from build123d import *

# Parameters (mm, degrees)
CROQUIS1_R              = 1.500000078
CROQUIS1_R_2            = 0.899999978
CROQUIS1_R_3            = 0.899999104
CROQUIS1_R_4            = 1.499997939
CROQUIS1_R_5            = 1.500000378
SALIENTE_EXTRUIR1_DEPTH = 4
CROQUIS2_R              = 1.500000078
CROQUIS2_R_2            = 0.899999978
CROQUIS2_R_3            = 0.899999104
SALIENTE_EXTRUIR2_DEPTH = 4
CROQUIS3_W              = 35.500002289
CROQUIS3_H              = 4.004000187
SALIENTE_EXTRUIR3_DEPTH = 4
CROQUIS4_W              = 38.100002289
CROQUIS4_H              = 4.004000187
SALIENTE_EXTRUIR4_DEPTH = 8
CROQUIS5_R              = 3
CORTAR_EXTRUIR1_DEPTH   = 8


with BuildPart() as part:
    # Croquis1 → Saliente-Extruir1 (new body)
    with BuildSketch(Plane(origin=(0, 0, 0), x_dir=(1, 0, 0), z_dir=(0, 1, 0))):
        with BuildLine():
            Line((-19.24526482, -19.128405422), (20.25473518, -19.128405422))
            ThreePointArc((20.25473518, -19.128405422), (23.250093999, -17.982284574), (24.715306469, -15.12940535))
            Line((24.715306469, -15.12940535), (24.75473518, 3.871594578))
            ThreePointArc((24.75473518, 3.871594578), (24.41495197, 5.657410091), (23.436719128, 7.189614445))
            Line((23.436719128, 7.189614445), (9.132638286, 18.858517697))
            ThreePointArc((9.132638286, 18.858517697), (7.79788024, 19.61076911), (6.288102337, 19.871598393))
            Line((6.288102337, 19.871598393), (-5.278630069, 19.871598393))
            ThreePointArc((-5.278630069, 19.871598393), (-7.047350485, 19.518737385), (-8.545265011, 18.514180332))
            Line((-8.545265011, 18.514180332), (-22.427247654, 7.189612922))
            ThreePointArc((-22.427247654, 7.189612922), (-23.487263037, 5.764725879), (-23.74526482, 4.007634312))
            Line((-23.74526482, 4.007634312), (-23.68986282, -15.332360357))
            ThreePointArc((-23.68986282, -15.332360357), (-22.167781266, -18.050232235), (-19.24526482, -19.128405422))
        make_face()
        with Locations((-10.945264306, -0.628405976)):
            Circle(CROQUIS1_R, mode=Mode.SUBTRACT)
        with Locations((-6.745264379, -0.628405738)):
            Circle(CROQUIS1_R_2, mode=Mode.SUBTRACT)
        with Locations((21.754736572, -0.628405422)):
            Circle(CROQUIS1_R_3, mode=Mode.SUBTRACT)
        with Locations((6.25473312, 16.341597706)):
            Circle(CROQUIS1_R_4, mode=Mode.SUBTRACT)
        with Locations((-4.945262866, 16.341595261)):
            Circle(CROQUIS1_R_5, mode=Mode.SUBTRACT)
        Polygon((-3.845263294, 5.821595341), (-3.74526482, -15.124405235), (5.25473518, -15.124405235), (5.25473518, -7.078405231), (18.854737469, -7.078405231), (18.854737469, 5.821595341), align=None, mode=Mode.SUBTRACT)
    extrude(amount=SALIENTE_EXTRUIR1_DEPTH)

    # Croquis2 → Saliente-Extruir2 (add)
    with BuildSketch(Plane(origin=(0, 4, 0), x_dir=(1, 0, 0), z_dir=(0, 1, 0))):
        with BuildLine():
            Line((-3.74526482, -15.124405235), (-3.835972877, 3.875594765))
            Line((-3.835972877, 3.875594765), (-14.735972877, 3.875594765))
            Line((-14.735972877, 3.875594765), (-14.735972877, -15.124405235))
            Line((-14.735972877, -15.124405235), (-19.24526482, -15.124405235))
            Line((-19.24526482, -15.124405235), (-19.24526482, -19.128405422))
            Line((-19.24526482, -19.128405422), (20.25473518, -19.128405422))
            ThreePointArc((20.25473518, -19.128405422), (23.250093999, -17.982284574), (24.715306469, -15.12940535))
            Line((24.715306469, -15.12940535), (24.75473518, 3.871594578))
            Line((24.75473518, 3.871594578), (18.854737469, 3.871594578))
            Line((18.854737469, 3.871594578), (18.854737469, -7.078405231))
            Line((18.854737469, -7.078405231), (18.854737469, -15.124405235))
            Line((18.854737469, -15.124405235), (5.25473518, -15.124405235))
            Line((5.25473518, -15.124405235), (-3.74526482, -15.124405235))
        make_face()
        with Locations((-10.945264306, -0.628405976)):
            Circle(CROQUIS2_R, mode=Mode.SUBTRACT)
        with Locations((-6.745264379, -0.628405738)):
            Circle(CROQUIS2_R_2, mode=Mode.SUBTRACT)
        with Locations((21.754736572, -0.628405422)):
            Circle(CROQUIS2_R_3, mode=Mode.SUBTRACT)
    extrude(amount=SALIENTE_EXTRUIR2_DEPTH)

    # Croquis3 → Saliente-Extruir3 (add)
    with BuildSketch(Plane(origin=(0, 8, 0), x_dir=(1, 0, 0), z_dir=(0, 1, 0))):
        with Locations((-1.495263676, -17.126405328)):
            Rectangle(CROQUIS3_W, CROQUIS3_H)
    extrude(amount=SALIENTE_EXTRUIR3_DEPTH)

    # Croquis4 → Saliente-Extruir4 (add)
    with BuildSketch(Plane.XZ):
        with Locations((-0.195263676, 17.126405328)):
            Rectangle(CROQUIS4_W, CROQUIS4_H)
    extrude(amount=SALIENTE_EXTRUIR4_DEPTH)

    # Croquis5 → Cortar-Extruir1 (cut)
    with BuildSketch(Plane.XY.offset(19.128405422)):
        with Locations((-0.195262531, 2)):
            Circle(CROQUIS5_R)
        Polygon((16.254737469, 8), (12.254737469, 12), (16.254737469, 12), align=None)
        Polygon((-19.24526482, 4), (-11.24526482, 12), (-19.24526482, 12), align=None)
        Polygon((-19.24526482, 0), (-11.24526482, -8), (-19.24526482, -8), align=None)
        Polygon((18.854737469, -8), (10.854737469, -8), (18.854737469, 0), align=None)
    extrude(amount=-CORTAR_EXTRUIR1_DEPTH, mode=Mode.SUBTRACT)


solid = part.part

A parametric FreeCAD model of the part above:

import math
import FreeCAD as App
import Part
import Sketcher


def add_polygon(sketch, points):
    """Adds a closed chain of lines whose ends are joined by coincident constraints."""
    first, n = sketch.GeometryCount, len(points)
    for a, b in zip(points, points[1:] + points[:1]):
        sketch.addGeometry(Part.LineSegment(App.Vector(*a, 0), App.Vector(*b, 0)), False)
    for i in range(n):
        sketch.addConstraint(Sketcher.Constraint("Coincident", first + i, 2, first + (i + 1) % n, 1))

doc = App.newDocument("Part")
body = doc.addObject("PartDesign::Body", "Body")

# Sketch on XZ plane
sketch1 = body.newObject("Sketcher::SketchObject", "Sketch")
sketch1.AttachmentSupport = (doc.getObject("XZ_Plane"), [""])
sketch1.MapMode = "FlatFace"
sketch1.addGeometry(Part.LineSegment(App.Vector(-19.245265, 19.128405, 0), App.Vector(20.254735, 19.128405, 0)), False)  # 0
sketch1.addGeometry(Part.ArcOfCircle(Part.Circle(App.Vector(20.254735, 14.641196, 0), App.Vector(0, 0, 1), 4.487209), math.radians(6.246152), math.radians(90)), False)  # 1
sketch1.addGeometry(Part.LineSegment(App.Vector(24.715306, 15.129405, 0), App.Vector(24.754735, -3.871595, 0)), False)  # 2
sketch1.addGeometry(Part.ArcOfCircle(Part.Circle(App.Vector(19.944406, -3.881576, 0), App.Vector(0, 0, 1), 4.81034), math.radians(-43.447785), math.radians(0.118894)), False)  # 3
sketch1.addGeometry(Part.LineSegment(App.Vector(23.436719, -7.189614, 0), App.Vector(9.132638, -18.858518, 0)), False)  # 4
sketch1.addGeometry(Part.ArcOfCircle(Part.Circle(App.Vector(6.288102, -15.371603, 0), App.Vector(0, 0, 1), 4.499996), math.radians(-90), math.radians(-50.793314)), False)  # 5
sketch1.addGeometry(Part.LineSegment(App.Vector(6.288102, -19.871598, 0), App.Vector(-5.27863, -19.871598, 0)), False)  # 6
sketch1.addGeometry(Part.ArcOfCircle(Part.Circle(App.Vector(-5.27863, -15.262301, 0), App.Vector(0, 0, 1), 4.609298), math.radians(-135.129695), math.radians(-90)), False)  # 7
sketch1.addGeometry(Part.LineSegment(App.Vector(-8.545265, -18.51418, 0), App.Vector(-22.427248, -7.189613, 0)), False)  # 8
sketch1.addGeometry(Part.ArcOfCircle(Part.Circle(App.Vector(-20.130645, -4.374371, 0), App.Vector(0, 0, 1), 3.633177), math.radians(174.206641), math.radians(230.793312)), False)  # 9
sketch1.addGeometry(Part.LineSegment(App.Vector(-23.745265, -4.007634, 0), App.Vector(-23.689863, 15.33236, 0)), False)  # 10
sketch1.addGeometry(Part.ArcOfCircle(Part.Circle(App.Vector(-19.245265, 14.628405, 0), App.Vector(0, 0, 1), 4.500001), math.radians(90), math.radians(170.999996)), False)  # 11
sketch1.addGeometry(Part.Circle(App.Vector(-10.945264, 0.628406, 0), App.Vector(0, 0, 1), 1.5), False)  # 12
sketch1.addGeometry(Part.Circle(App.Vector(-6.745264, 0.628406, 0), App.Vector(0, 0, 1), 0.9), False)  # 13
add_polygon(sketch1, [(-3.745265, 15.124405), (-3.845263, -5.821595), (18.854737, -5.821595), (18.854737, 7.078405), (5.254735, 7.078405), (5.254735, 15.124405)])  # lines 14-19
sketch1.addGeometry(Part.Circle(App.Vector(21.754737, 0.628405, 0), App.Vector(0, 0, 1), 0.899999), False)  # 20
sketch1.addGeometry(Part.Circle(App.Vector(-4.945263, -16.341595, 0), App.Vector(0, 0, 1), 1.5), False)  # 21
sketch1.addGeometry(Part.Circle(App.Vector(6.254733, -16.341598, 0), App.Vector(0, 0, 1), 1.499998), False)  # 22
sketch1.addConstraint([
    Sketcher.Constraint("Coincident", 0, 2, 1, 2),
    Sketcher.Constraint("Coincident", 1, 1, 2, 1),
    Sketcher.Constraint("Coincident", 2, 2, 3, 2),
    Sketcher.Constraint("Coincident", 3, 1, 4, 1),
    Sketcher.Constraint("Coincident", 4, 2, 5, 2),
    Sketcher.Constraint("Coincident", 5, 1, 6, 1),
    Sketcher.Constraint("Coincident", 6, 2, 7, 2),
    Sketcher.Constraint("Coincident", 7, 1, 8, 1),
    Sketcher.Constraint("Coincident", 8, 2, 9, 2),
    Sketcher.Constraint("Coincident", 9, 1, 10, 1),
    Sketcher.Constraint("Coincident", 10, 2, 11, 2),
    Sketcher.Constraint("Coincident", 11, 1, 0, 1),
    Sketcher.Constraint("Horizontal", 0),
    Sketcher.Constraint("Horizontal", 6),
    Sketcher.Constraint("Horizontal", 15),
    Sketcher.Constraint("Vertical", 16),
    Sketcher.Constraint("Horizontal", 17),
    Sketcher.Constraint("Vertical", 18),
    Sketcher.Constraint("Horizontal", 19),
    Sketcher.Constraint("Diameter", 12, 3.0),
    Sketcher.Constraint("Diameter", 21, 3.000001),
    Sketcher.Constraint("Diameter", 13, 1.8),
    Sketcher.Constraint("Diameter", 20, 1.799998),
    Sketcher.Constraint("Radius", 11, 4.500001),
    Sketcher.Constraint("DistanceX", 19, 2, 19, 1, 9.0),
    Sketcher.Constraint("DistanceX", 0, 1, 0, 2, 39.5),
    Sketcher.Constraint("DistanceX", 15, 1, 15, 2, 22.700001),
    Sketcher.Constraint("DistanceY", 16, 1, 16, 2, 12.900001),
    Sketcher.Constraint("DistanceY", 12, 3, 11, 3, 13.999999),
    Sketcher.Constraint("DistanceY", 13, 3, 11, 3, 13.999999),
    Sketcher.Constraint("DistanceX", 12, 3, 21, 3, 6.000001),
    Sketcher.Constraint("DistanceX", 13, 3, 0, 2, 27.0),
    Sketcher.Constraint("DistanceX", 20, 3, 2, 2, 2.999999),
    Sketcher.Constraint("DistanceX", 9, 1, 13, 3, 17.0),
    Sketcher.Constraint("DistanceX", 13, 3, 17, 2, 12.0),
    Sketcher.Constraint("DistanceX", 17, 2, 1, 3, 15.0),
    Sketcher.Constraint("DistanceX", 11, 3, 1, 3, 39.5),
    Sketcher.Constraint("DistanceX", 11, 3, 12, 3, 8.300001),
    Sketcher.Constraint("DistanceX", 1, 3, 20, 3, 1.500001),
    Sketcher.Constraint("DistanceY", 20, 3, 0, 2, 18.5),
    Sketcher.Constraint("DistanceY", 2, 2, 20, 3, 4.5),
    Sketcher.Constraint("DistanceX", 7, 1, 22, 3, 14.799998),
    Sketcher.Constraint("DistanceX", 13, 3, 14, 2, 2.900001),
    Sketcher.Constraint("DistanceX", 7, 1, 14, 2, 4.700002),
    Sketcher.Constraint("DistanceY", 18, 1, 18, 2, 8.046),
    Sketcher.Constraint("Radius", 1, 4.487209),
    Sketcher.Constraint("Radius", 3, 4.81034),
    Sketcher.Constraint("DistanceY", 21, 3, 13, 3, 16.970001),
    Sketcher.Constraint("DistanceY", 5, 1, 22, 3, 3.530001),
    Sketcher.Constraint("DistanceY", 14, 2, 13, 3, 6.450001),
    Sketcher.Constraint("Diameter", 22, 2.999996),
    Sketcher.Constraint("Radius", 5, 4.499996),
    Sketcher.Constraint("Radius", 7, 4.609298),
    Sketcher.Constraint("Radius", 9, 3.633177),
    Sketcher.Constraint("DistanceY", 1, 1, 0, 2, 3.999),
    Sketcher.Constraint("DistanceY", 7, 3, -1, 1, 15.262301),
    Sketcher.Constraint("DistanceY", 5, 3, 1, 3, 30.012799),
    Sketcher.Constraint("DistanceX", 21, 3, 4, 2, 14.077901),
    Sketcher.Constraint("DistanceX", 9, 1, 10, 2, 0.055402),
    Sketcher.Constraint("DistanceX", 6, 2, 6, 1, 11.566732),
    Sketcher.Constraint("DistanceX", 7, 3, -1, 1, 5.27863),
    Sketcher.Constraint("DistanceY", 9, 3, -1, 1, 4.374371),
    Sketcher.Constraint("DistanceX", -1, 1, 3, 1, 23.436719),
    Sketcher.Constraint("DistanceX", -1, 1, 4, 2, 9.132638),
    Sketcher.Constraint("DistanceX", 6, 2, -1, 1, 5.27863),
    Sketcher.Constraint("DistanceX", 9, 3, 3, 3, 40.075051),
    Sketcher.Constraint("DistanceY", 3, 3, 11, 3, 18.509981),
    Sketcher.Constraint("DistanceX", 22, 3, 5, 3, 0.033369),
    Sketcher.Constraint("DistanceY", 8, 2, 12, 3, 7.818019),
])
pad1 = body.newObject("PartDesign::Pad", "Pad")
pad1.Profile = sketch1
pad1.Length = 4
pad1.Reversed = True

# Sketch on XZ plane
sketch2 = body.newObject("Sketcher::SketchObject", "Sketch001")
sketch2.AttachmentSupport = (doc.getObject("XZ_Plane"), [""])
sketch2.MapMode = "FlatFace"
sketch2.AttachmentOffset = App.Placement(App.Vector(0, 0, -4), App.Rotation())
sketch2.addGeometry([
    Part.LineSegment(App.Vector(-3.7, 15.1, 0), App.Vector(-3.8, -3.9, 0)),  # 0
    Part.LineSegment(App.Vector(-3.8, -3.9, 0), App.Vector(-14.7, -3.9, 0)),  # 1
    Part.LineSegment(App.Vector(-14.7, -3.9, 0), App.Vector(-14.7, 15.1, 0)),  # 2
    Part.LineSegment(App.Vector(-14.7, 15.1, 0), App.Vector(-19.2, 15.1, 0)),  # 3
    Part.LineSegment(App.Vector(-19.2, 15.1, 0), App.Vector(-19.2, 19.1, 0)),  # 4
    Part.LineSegment(App.Vector(-19.2, 19.1, 0), App.Vector(20.3, 19.1, 0)),  # 5
    Part.ArcOfCircle(Part.Circle(App.Vector(20.3, 14.6, 0), App.Vector(0, 0, 1), 4.5), math.radians(6), math.radians(90)),  # 6
    Part.LineSegment(App.Vector(24.7, 15.1, 0), App.Vector(24.8, -3.9, 0)),  # 7
    Part.LineSegment(App.Vector(24.8, -3.9, 0), App.Vector(18.9, -3.9, 0)),  # 8
    Part.LineSegment(App.Vector(18.9, -3.9, 0), App.Vector(18.9, 15.1, 0)),  # 9
    Part.LineSegment(App.Vector(18.9, 15.1, 0), App.Vector(-3.7, 15.1, 0)),  # 10
    Part.Circle(App.Vector(-10.9, 0.6, 0), App.Vector(0, 0, 1), 1.5),  # 11
    Part.Circle(App.Vector(-6.7, 0.6, 0), App.Vector(0, 0, 1), 0.9),  # 12
    Part.Circle(App.Vector(21.8, 0.6, 0), App.Vector(0, 0, 1), 0.9),  # 13
], False)
sketch2.addConstraint([
    Sketcher.Constraint("Coincident", 0, 2, 1, 1),
    Sketcher.Constraint("Coincident", 1, 2, 2, 1),
    Sketcher.Constraint("Coincident", 2, 2, 3, 1),
    Sketcher.Constraint("Coincident", 3, 2, 4, 1),
    Sketcher.Constraint("Coincident", 4, 2, 5, 1),
    Sketcher.Constraint("Tangent", 5, 2, 6, 2),
    Sketcher.Constraint("Coincident", 6, 1, 7, 1),
    Sketcher.Constraint("Coincident", 7, 2, 8, 1),
    Sketcher.Constraint("Coincident", 8, 2, 9, 1),
    Sketcher.Constraint("Coincident", 9, 2, 10, 1),
    Sketcher.Constraint("Coincident", 10, 2, 0, 1),
    Sketcher.Constraint("Horizontal", 1),
    Sketcher.Constraint("Vertical", 2),
    Sketcher.Constraint("Horizontal", 3),
    Sketcher.Constraint("Vertical", 4),
    Sketcher.Constraint("Horizontal", 5),
    Sketcher.Constraint("Horizontal", 8),
    Sketcher.Constraint("Vertical", 9),
    Sketcher.Constraint("Horizontal", 10),
    Sketcher.Constraint("Equal", 12, 13),
    Sketcher.Constraint("Horizontal", 11, 3, 12, 3),
    Sketcher.Constraint("Horizontal", 12, 3, 13, 3),
    Sketcher.Constraint("Horizontal", 3, 2, 9, 2),
    Sketcher.Constraint("Diameter", 11, 3.0),
    Sketcher.Constraint("Diameter", 12, 1.8),
    Sketcher.Constraint("DistanceY", 2, 1, 2, 2, 19.0),
    Sketcher.Constraint("DistanceX", 1, 2, 1, 1, 10.9),
    Sketcher.Constraint("DistanceX", 5, 1, 5, 2, 39.5),
    Sketcher.Constraint("DistanceX", 12, 3, 6, 3, 27.0),
    Sketcher.Constraint("DistanceX", 13, 3, 7, 2, 2.999999),
    Sketcher.Constraint("DistanceY", 7, 2, 5, 2, 23.0),
    Sketcher.Constraint("DistanceX", 12, 3, 10, 2, 3.0),
    Sketcher.Constraint("DistanceX", 11, 3, 6, 3, 31.199999),
    Sketcher.Constraint("DistanceX", 6, 3, 13, 3, 1.500001),
    Sketcher.Constraint("DistanceY", 11, 3, 4, 2, 18.499999),
    Sketcher.Constraint("DistanceX", 8, 2, 13, 3, 2.899999),
    Sketcher.Constraint("DistanceY", 4, 1, 4, 2, 4.004),
    Sketcher.Constraint("Radius", 6, 4.487209),
    Sketcher.Constraint("DistanceY", 6, 1, 5, 2, 3.999),
    Sketcher.Constraint("DistanceX", 3, 2, 3, 1, 4.509292),
    Sketcher.Constraint("DistanceX", -1, 1, 6, 3, 20.254735),
    Sketcher.Constraint("DistanceY", -1, 1, 6, 3, 14.641196),
])
pad2 = body.newObject("PartDesign::Pad", "Pad001")
pad2.Profile = sketch2
pad2.Length = 4
pad2.Reversed = True

# Sketch on XZ plane
sketch3 = body.newObject("Sketcher::SketchObject", "Sketch002")
sketch3.AttachmentSupport = (doc.getObject("XZ_Plane"), [""])
sketch3.MapMode = "FlatFace"
sketch3.AttachmentOffset = App.Placement(App.Vector(0, 0, -8), App.Rotation())
add_polygon(sketch3, [(-19.2, 15.1), (-19.2, 19.1), (16.3, 19.1), (16.3, 15.1)])  # lines 0-3
sketch3.addConstraint([
    Sketcher.Constraint("Vertical", 0),
    Sketcher.Constraint("Horizontal", 1),
    Sketcher.Constraint("Vertical", 2),
    Sketcher.Constraint("Horizontal", 3),
    Sketcher.Constraint("DistanceY", 0, 1, 0, 2, 4.004),
    Sketcher.Constraint("DistanceX", 1, 1, 1, 2, 35.500002),
    Sketcher.Constraint("DistanceX", 0, 2, -1, 1, 19.245265),
    Sketcher.Constraint("DistanceY", -1, 1, 0, 2, 19.128405),
])
pad3 = body.newObject("PartDesign::Pad", "Pad002")
pad3.Profile = sketch3
pad3.Length = 4
pad3.Reversed = True

# Sketch on XZ plane
sketch4 = body.newObject("Sketcher::SketchObject", "Sketch003")
sketch4.AttachmentSupport = (doc.getObject("XZ_Plane"), [""])
sketch4.MapMode = "FlatFace"
add_polygon(sketch4, [(-19.2, 19.1), (-19.2, 15.1), (18.9, 15.1), (18.9, 19.1)])  # lines 0-3
sketch4.addConstraint([
    Sketcher.Constraint("Vertical", 0),
    Sketcher.Constraint("Horizontal", 1),
    Sketcher.Constraint("Vertical", 2),
    Sketcher.Constraint("Horizontal", 3),
    Sketcher.Constraint("DistanceY", 0, 2, 0, 1, 4.004),
    Sketcher.Constraint("DistanceX", 1, 1, 1, 2, 38.100002),
    Sketcher.Constraint("DistanceX", 0, 2, -1, 1, 19.245265),
    Sketcher.Constraint("DistanceY", -1, 1, 0, 2, 15.124405),
])
pad4 = body.newObject("PartDesign::Pad", "Pad003")
pad4.Profile = sketch4
pad4.Length = 8

# Sketch on XY plane
sketch5 = body.newObject("Sketcher::SketchObject", "Sketch004")
sketch5.AttachmentSupport = (doc.getObject("XY_Plane"), [""])
sketch5.MapMode = "FlatFace"
sketch5.AttachmentOffset = App.Placement(App.Vector(0, 0, 19.128405), App.Rotation())
sketch5.addGeometry(Part.Circle(App.Vector(-0.2, 2, 0), App.Vector(0, 0, 1), 3), False)  # 0
add_polygon(sketch5, [(12.3, 12), (16.3, 8), (16.3, 12)])  # lines 1-3
add_polygon(sketch5, [(-19.2, 4), (-11.2, 12), (-19.2, 12)])  # lines 4-6
add_polygon(sketch5, [(-11.2, -8), (-19.2, 0), (-19.2, -8)])  # lines 7-9
add_polygon(sketch5, [(10.9, -8), (18.9, -8), (18.9, 0)])  # lines 10-12
sketch5.addConstraint([
    Sketcher.Constraint("Vertical", 2),
    Sketcher.Constraint("Horizontal", 3),
    Sketcher.Constraint("Horizontal", 5),
    Sketcher.Constraint("Vertical", 6),
    Sketcher.Constraint("Vertical", 8),
    Sketcher.Constraint("Horizontal", 9),
    Sketcher.Constraint("Horizontal", 10),
    Sketcher.Constraint("Vertical", 11),
    Sketcher.Constraint("PointOnObject", 7, 2, -1),
    Sketcher.Constraint("PointOnObject", 11, 2, -1),
    Sketcher.Constraint("Perpendicular", 1, 4),
    Sketcher.Constraint("Perpendicular", 4, 7),
    Sketcher.Constraint("Perpendicular", 7, 12),
    Sketcher.Constraint("Horizontal", 3, 2, 4, 2),
    Sketcher.Constraint("Horizontal", 9, 2, 10, 2),
    Sketcher.Constraint("Vertical", 6, 2, 7, 2),
    Sketcher.Constraint("Vertical", 4, 2, 9, 2),
    Sketcher.Constraint("Equal", 9, 10),
    Sketcher.Constraint("Diameter", 0, 6.0),
    Sketcher.Constraint("DistanceX", 3, 2, 3, 1, 4.0),
    Sketcher.Constraint("DistanceX", 5, 2, 5, 1, 8.0),
    Sketcher.Constraint("DistanceY", -1, 1, 0, 3, 2.0),
    Sketcher.Constraint("DistanceY", -1, 1, 1, 2, 8.0),
    Sketcher.Constraint("DistanceX", 1, 2, 10, 2, 2.6),
    Sketcher.Constraint("DistanceX", 0, 3, 1, 2, 16.45),
    Sketcher.Constraint("DistanceX", 0, 3, -1, 1, 0.195263),
    Sketcher.Constraint("DistanceX", 4, 2, -1, 1, 11.245265),
])
pocket1 = body.newObject("PartDesign::Pocket", "Pocket")
pocket1.Profile = sketch5
pocket1.Length = 8

doc.recompute()
